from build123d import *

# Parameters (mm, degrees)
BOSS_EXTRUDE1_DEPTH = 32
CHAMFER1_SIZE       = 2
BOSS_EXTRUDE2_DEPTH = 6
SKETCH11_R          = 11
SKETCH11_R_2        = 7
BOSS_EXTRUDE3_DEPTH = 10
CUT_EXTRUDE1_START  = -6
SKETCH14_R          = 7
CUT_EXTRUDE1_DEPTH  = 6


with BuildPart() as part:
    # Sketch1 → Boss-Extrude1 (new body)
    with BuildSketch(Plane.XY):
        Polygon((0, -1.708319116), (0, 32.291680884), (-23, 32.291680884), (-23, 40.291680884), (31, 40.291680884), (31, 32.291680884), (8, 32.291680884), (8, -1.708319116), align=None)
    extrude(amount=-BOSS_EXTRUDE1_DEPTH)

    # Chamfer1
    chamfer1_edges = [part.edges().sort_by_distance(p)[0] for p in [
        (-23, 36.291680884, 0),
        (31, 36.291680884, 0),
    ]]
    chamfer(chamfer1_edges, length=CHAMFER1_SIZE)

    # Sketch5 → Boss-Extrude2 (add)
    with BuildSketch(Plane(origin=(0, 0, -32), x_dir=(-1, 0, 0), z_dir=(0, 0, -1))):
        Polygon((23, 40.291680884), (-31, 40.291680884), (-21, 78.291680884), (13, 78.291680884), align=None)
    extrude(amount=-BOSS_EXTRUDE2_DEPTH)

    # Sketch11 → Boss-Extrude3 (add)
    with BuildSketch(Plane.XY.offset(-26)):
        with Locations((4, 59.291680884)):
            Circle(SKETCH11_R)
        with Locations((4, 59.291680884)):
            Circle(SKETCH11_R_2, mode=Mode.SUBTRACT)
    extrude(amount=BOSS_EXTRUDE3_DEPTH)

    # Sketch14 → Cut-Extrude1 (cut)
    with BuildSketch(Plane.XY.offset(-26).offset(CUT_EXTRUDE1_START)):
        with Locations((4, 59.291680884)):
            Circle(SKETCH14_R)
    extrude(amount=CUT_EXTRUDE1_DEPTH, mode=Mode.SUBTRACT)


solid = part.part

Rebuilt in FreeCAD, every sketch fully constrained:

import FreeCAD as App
import Part
import Sketcher
from FreeCAD import Vector


def edges_at(feature, points):
    """Names of the edges that pass closest to the given points."""
    edges = feature.Shape.Edges
    near = lambda p: min(range(len(edges)), key=lambda i: edges[i].distToShape(Part.Vertex(*p))[0])
    return sorted({f"Edge{near(p) + 1}" for p in points})

doc = App.newDocument("Part")
body = doc.addObject("PartDesign::Body", "Body")

# Sketch on XY plane
sketch1 = doc.addObject("Sketcher::SketchObject", "Sketch")
body.addObject(sketch1)
sketch1.AttachmentSupport = (doc.XY_Plane, [""])
sketch1.MapMode = "FlatFace"
sketch1.addGeometry([
    Part.LineSegment(Vector(0, 32, 0), Vector(0, -2, 0)),  # 0
    Part.LineSegment(Vector(0, -2, 0), Vector(8, -2, 0)),  # 1
    Part.LineSegment(Vector(8, -2, 0), Vector(8, 32, 0)),  # 2
    Part.LineSegment(Vector(8, 32, 0), Vector(31, 32, 0)),  # 3
    Part.LineSegment(Vector(31, 32, 0), Vector(31, 40, 0)),  # 4
    Part.LineSegment(Vector(31, 40, 0), Vector(-23, 40, 0)),  # 5
    Part.LineSegment(Vector(-23, 40, 0), Vector(-23, 32, 0)),  # 6
    Part.LineSegment(Vector(-23, 32, 0), Vector(0, 32, 0)),  # 7
], False)
sketch1.addConstraint([
    Sketcher.Constraint("Coincident", 0, 2, 1, 1),
    Sketcher.Constraint("Coincident", 1, 2, 2, 1),
    Sketcher.Constraint("Coincident", 2, 2, 3, 1),
    Sketcher.Constraint("Coincident", 3, 2, 4, 1),
    Sketcher.Constraint("Coincident", 4, 2, 5, 1),
    Sketcher.Constraint("Coincident", 5, 2, 6, 1),
    Sketcher.Constraint("Coincident", 6, 2, 7, 1),
    Sketcher.Constraint("Coincident", 7, 2, 0, 1),
    Sketcher.Constraint("Vertical", 0),
    Sketcher.Constraint("Horizontal", 1),
    Sketcher.Constraint("Vertical", 2),
    Sketcher.Constraint("Horizontal", 3),
    Sketcher.Constraint("Vertical", 4),
    Sketcher.Constraint("Horizontal", 5),
    Sketcher.Constraint("Vertical", 6),
    Sketcher.Constraint("Horizontal", 7),
    Sketcher.Constraint("PointOnObject", 0, 2, -2),
    Sketcher.Constraint("Horizontal", 3, 2, 6, 2),
    Sketcher.Constraint("Equal", 3, 7),
    Sketcher.Constraint("Equal", 1, 4),
    Sketcher.Constraint("DistanceX", 1, 1, 1, 2, 8.0),
    Sketcher.Constraint("DistanceX", 3, 1, 3, 2, 23.0),
    Sketcher.Constraint("DistanceY", 0, 2, 0, 1, 34.0),
    Sketcher.Constraint("DistanceY", 0, 2, -1, 1, 1.708319),
])
pad1 = doc.addObject("PartDesign::Pad", "Pad")
body.addObject(pad1)
pad1.Profile = sketch1
pad1.Length = 32
pad1.Reversed = True
doc.recompute()

chamfer = doc.addObject("PartDesign::Chamfer", "Chamfer")
body.addObject(chamfer)
chamfer.Base = (pad1, edges_at(pad1, [(-23, 36.292, 0), (31, 36.292, 0)]))
chamfer.Size = 2

# Sketch on XY plane
sketch2 = doc.addObject("Sketcher::SketchObject", "Sketch001")
body.addObject(sketch2)
sketch2.AttachmentSupport = (doc.XY_Plane, [""])
sketch2.MapMode = "FlatFace"
sketch2.AttachmentOffset = App.Placement(Vector(0, 0, -32), App.Rotation())
sketch2.addGeometry([
    Part.LineSegment(Vector(31, 40, 0), Vector(-23, 40, 0)),
    Part.LineSegment(Vector(-23, 40, 0), Vector(-13, 78, 0)),
    Part.LineSegment(Vector(-13, 78, 0), Vector(21, 78, 0)),
    Part.LineSegment(Vector(21, 78, 0), Vector(31, 40, 0)),
], False)
sketch2.addConstraint([
    Sketcher.Constraint("Coincident", 0, 2, 1, 1),
    Sketcher.Constraint("Coincident", 1, 2, 2, 1),
    Sketcher.Constraint("Coincident", 2, 2, 3, 1),
    Sketcher.Constraint("Coincident", 3, 2, 0, 1),
    Sketcher.Constraint("Horizontal", 0),
    Sketcher.Constraint("Horizontal", 2),
    Sketcher.Constraint("Equal", 1, 3),
    Sketcher.Constraint("DistanceX", 0, 2, 0, 1, 54.0),
    Sketcher.Constraint("DistanceX", 2, 1, 2, 2, 34.0),
    Sketcher.Constraint("DistanceX", 0, 2, -1, 1, 23.0),
    Sketcher.Constraint("DistanceY", 0, 2, 1, 2, 38.0),
    Sketcher.Constraint("DistanceY", -1, 1, 0, 2, 40.291681),
])
pad2 = doc.addObject("PartDesign::Pad", "Pad001")
body.addObject(pad2)
pad2.Profile = sketch2
pad2.Length = 6

# Sketch on XY plane
sketch3 = doc.addObject("Sketcher::SketchObject", "Sketch002")
body.addObject(sketch3)
sketch3.AttachmentSupport = (doc.XY_Plane, [""])
sketch3.MapMode = "FlatFace"
sketch3.AttachmentOffset = App.Placement(Vector(0, 0, -26), App.Rotation())
sketch3.addGeometry([
    Part.Circle(Vector(4, 59, 0), Vector(0, 0, 1), 11),
    Part.Circle(Vector(4, 59, 0), Vector(0, 0, 1), 7),
], False)
sketch3.addConstraint([
    Sketcher.Constraint("Coincident", 1, 3, 0, 3),
    Sketcher.Constraint("Diameter", 0, 22.0),
    Sketcher.Constraint("Diameter", 1, 14.0),
    Sketcher.Constraint("DistanceX", -1, 1, 0, 3, 4.0),
    Sketcher.Constraint("DistanceY", -1, 1, 0, 3, 59.291681),
])
pad3 = doc.addObject("PartDesign::Pad", "Pad002")
body.addObject(pad3)
pad3.Profile = sketch3
pad3.Length = 10

# Sketch on XY plane
sketch4 = doc.addObject("Sketcher::SketchObject", "Sketch003")
body.addObject(sketch4)
sketch4.AttachmentSupport = (doc.XY_Plane, [""])
sketch4.MapMode = "FlatFace"
sketch4.AttachmentOffset = App.Placement(Vector(0, 0, -32), App.Rotation())
sketch4.addGeometry(Part.Circle(Vector(4, 59, 0), Vector(0, 0, 1), 7), False)
sketch4.addConstraint([
    Sketcher.Constraint("Diameter", 0, 14.0),
    Sketcher.Constraint("DistanceX", -1, 1, 0, 3, 4.0),
    Sketcher.Constraint("DistanceY", -1, 1, 0, 3, 59.291681),
])
pocket1 = doc.addObject("PartDesign::Pocket", "Pocket")
body.addObject(pocket1)
pocket1.Profile = sketch4
pocket1.Length = 6
pocket1.Reversed = True

doc.recompute()
